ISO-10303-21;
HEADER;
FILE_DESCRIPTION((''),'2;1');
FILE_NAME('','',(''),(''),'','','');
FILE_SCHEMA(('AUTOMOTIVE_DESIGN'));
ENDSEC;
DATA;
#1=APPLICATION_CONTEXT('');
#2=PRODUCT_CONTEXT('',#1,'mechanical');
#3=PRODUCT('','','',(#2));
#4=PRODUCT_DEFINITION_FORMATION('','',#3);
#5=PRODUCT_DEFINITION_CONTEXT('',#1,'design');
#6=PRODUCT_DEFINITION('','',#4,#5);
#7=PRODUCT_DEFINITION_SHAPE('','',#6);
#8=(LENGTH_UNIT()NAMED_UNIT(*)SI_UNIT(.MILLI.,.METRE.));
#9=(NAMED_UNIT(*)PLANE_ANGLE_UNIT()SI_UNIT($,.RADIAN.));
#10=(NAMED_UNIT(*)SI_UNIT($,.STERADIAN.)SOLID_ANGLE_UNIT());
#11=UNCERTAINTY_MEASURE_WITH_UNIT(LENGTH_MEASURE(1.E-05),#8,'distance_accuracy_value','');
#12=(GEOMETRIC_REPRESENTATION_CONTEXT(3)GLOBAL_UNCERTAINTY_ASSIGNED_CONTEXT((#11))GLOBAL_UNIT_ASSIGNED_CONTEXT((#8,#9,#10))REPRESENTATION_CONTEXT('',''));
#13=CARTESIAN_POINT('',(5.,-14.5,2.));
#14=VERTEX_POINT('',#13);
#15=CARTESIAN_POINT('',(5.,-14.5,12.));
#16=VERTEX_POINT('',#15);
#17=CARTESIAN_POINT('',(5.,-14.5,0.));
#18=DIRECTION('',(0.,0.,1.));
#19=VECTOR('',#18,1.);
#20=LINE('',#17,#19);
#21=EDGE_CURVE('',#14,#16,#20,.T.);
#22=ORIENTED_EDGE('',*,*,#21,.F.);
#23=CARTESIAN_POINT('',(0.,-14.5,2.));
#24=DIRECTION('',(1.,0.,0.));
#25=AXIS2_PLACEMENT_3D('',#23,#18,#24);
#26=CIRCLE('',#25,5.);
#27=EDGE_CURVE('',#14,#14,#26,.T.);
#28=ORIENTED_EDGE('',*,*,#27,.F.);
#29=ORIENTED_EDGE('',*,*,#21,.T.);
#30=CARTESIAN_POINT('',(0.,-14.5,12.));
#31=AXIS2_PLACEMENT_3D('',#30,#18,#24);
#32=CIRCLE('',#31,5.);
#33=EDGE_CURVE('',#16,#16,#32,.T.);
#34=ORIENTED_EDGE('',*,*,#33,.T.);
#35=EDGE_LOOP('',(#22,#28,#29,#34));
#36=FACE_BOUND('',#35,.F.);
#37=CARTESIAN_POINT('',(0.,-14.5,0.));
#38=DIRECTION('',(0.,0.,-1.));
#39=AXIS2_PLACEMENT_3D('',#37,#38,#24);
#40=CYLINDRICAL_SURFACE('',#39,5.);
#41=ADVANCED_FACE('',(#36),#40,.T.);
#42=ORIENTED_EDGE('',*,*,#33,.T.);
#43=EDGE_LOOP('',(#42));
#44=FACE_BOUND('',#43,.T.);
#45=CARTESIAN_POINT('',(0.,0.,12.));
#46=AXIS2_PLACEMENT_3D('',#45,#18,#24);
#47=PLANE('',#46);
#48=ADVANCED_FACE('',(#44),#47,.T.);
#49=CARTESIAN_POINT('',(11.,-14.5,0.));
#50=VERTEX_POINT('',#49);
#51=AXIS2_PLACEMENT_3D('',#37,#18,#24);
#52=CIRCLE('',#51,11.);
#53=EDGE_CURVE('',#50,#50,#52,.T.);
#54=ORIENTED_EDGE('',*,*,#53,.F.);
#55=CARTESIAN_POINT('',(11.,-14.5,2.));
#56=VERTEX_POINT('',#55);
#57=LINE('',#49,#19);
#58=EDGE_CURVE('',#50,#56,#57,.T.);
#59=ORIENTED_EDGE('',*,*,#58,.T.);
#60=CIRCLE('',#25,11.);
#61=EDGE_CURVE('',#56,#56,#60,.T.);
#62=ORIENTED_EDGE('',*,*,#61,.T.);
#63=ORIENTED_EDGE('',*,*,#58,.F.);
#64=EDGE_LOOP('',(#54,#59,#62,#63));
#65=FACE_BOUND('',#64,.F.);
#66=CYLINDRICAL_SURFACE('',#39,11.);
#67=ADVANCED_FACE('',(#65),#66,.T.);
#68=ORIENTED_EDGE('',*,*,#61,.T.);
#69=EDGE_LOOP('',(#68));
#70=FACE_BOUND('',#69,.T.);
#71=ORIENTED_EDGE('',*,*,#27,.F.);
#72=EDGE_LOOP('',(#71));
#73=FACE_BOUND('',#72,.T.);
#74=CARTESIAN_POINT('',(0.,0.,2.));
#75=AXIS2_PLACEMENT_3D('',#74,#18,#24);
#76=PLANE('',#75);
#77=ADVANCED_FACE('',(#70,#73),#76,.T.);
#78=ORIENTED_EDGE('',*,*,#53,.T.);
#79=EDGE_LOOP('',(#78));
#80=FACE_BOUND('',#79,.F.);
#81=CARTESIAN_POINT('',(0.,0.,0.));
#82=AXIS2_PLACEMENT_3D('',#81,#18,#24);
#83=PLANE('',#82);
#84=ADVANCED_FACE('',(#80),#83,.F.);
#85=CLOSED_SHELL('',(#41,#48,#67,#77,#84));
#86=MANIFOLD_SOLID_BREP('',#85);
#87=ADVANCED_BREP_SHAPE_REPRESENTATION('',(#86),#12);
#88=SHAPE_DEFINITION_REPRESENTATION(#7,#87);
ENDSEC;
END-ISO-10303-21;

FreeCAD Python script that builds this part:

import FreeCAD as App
import Part
import Sketcher

doc = App.newDocument("Part")
body = doc.addObject("PartDesign::Body", "Body")

# Sketch on XY plane
sketch1 = body.newObject("Sketcher::SketchObject", "Sketch")
sketch1.AttachmentSupport = (doc.getObject("XY_Plane"), [""])
sketch1.MapMode = "FlatFace"
sketch1.addGeometry(Part.Circle(App.Vector(0, -14, 0), App.Vector(0, 0, 1), 5), False)
sketch1.addConstraint(Sketcher.Constraint("PointOnObject", 0, 3, -2))
sketch1.addConstraint(Sketcher.Constraint("Diameter", 0, 10.0))
sketch1.addConstraint(Sketcher.Constraint("DistanceY", 0, 3, -1, 1, 14.5))
pad1 = body.newObject("PartDesign::Pad", "Pad")
pad1.Profile = sketch1
pad1.Length = 12

# Sketch on XY plane
sketch2 = body.newObject("Sketcher::SketchObject", "Sketch001")
sketch2.AttachmentSupport = (doc.getObject("XY_Plane"), [""])
sketch2.MapMode = "FlatFace"
sketch2.addGeometry(Part.Circle(App.Vector(0, -14, 0), App.Vector(0, 0, 1), 11), False)
sketch2.addGeometry(Part.Circle(App.Vector(0, -14, 0), App.Vector(0, 0, 1), 5), False)
sketch2.addConstraint(Sketcher.Constraint("Coincident", 1, 3, 0, 3))
sketch2.addConstraint(Sketcher.Constraint("PointOnObject", 0, 3, -2))
sketch2.addConstraint(Sketcher.Constraint("Diameter", 0, 22.0))
sketch2.addConstraint(Sketcher.Constraint("Diameter", 1, 10.0))
sketch2.addConstraint(Sketcher.Constraint("DistanceY", 0, 3, -1, 1, 14.5))
pad2 = body.newObject("PartDesign::Pad", "Pad001")
pad2.Profile = sketch2
pad2.Length = 2

doc.recompute()
